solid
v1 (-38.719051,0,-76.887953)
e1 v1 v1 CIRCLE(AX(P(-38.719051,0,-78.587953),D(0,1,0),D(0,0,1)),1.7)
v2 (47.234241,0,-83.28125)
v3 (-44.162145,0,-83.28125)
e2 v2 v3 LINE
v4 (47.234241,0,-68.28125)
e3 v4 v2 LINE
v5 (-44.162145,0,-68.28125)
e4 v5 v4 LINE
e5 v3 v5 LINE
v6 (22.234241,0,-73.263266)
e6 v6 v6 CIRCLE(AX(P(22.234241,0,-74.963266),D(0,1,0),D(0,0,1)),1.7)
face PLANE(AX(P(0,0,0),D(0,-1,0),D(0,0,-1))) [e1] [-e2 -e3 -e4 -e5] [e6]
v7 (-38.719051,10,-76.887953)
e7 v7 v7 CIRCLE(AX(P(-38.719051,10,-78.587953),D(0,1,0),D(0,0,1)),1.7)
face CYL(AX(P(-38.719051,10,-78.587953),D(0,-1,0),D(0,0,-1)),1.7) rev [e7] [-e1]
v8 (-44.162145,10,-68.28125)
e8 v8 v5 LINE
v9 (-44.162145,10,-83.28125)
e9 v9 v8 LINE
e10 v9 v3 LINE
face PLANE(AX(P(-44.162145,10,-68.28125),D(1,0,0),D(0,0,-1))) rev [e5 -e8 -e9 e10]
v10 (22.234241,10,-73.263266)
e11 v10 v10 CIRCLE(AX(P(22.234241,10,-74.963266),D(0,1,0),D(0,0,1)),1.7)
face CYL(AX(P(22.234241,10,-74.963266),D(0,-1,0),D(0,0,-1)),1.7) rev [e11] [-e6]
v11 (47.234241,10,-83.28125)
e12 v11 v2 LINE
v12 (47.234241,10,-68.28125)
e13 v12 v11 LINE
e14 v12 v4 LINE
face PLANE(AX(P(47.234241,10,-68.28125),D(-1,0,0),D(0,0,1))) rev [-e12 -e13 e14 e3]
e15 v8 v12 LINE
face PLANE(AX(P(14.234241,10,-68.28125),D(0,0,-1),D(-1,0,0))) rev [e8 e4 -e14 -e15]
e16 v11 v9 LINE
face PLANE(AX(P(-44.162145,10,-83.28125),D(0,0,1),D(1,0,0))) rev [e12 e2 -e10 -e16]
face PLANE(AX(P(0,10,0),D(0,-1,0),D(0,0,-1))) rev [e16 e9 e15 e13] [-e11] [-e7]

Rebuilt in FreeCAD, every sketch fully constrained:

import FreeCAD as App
import Part
import Sketcher


def add_polygon(sketch, points):
    """Adds a closed chain of lines whose ends are joined by coincident constraints."""
    first, n = sketch.GeometryCount, len(points)
    for a, b in zip(points, points[1:] + points[:1]):
        sketch.addGeometry(Part.LineSegment(App.Vector(*a, 0), App.Vector(*b, 0)), False)
    for i in range(n):
        sketch.addConstraint(Sketcher.Constraint("Coincident", first + i, 2, first + (i + 1) % n, 1))

doc = App.newDocument("Part")
params = doc.addObject("Spreadsheet::Sheet", "Params")
for row, (alias, value) in enumerate([
    ("sketch1_diameter", "3.4 mm"),
    ("sketch1_height", "15 mm"),
    ("pad1_length", "10 mm"),
], start=1):
    params.set(f"A{row}", alias)
    params.set(f"B{row}", "=" + value)
    params.setAlias(f"B{row}", alias)

body = doc.addObject("PartDesign::Body", "Body")

sketch1 = body.newObject("Sketcher::SketchObject", "Sketch")
sketch1.AttachmentSupport = (doc.getObject("XZ_Plane"), [""])
sketch1.MapMode = "FlatFace"
add_polygon(sketch1, [(47.2, -83.3), (-44.2, -83.3), (-44.2, -68.3), (47.2, -68.3)])
sketch1.addGeometry(Part.Circle(App.Vector(22.2, -75, 0), App.Vector(0, 0, 1), 1.7), False)
sketch1.addGeometry(Part.Circle(App.Vector(-38.7, -78.6, 0), App.Vector(0, 0, 1), 1.7), False)
sketch1.addConstraint([
    Sketcher.Constraint("Horizontal", 0),
    Sketcher.Constraint("Vertical", 1),
    Sketcher.Constraint("Horizontal", 2),
    Sketcher.Constraint("Vertical", 3),
    Sketcher.Constraint("Equal", 4, 5),
    Sketcher.Constraint("Diameter", 4, 3.4),
    Sketcher.Constraint("DistanceY", 1, 1, 1, 2, 15.0),
    Sketcher.Constraint("DistanceX", 4, 3, 2, 2, 25.0),
    Sketcher.Constraint("DistanceX", 0, 2, 0, 1, 91.396386),
    Sketcher.Constraint("DistanceX", -1, 1, 4, 3, 22.234241),
    Sketcher.Constraint("DistanceX", 5, 3, -1, 1, 38.719051),
    Sketcher.Constraint("DistanceY", 0, 2, -1, 1, 83.28125),
    Sketcher.Constraint("DistanceY", 4, 3, -1, 1, 74.963266),
    Sketcher.Constraint("DistanceY", 5, 3, -1, 1, 78.587953),
])
sketch1.setExpression("Constraints[9]", "Params.sketch1_diameter")
sketch1.setExpression("Constraints[10]", "Params.sketch1_height")
pad1 = body.newObject("PartDesign::Pad", "Pad")
pad1.Profile = sketch1
pad1.setExpression("Length", "Params.pad1_length")
pad1.Reversed = True

doc.recompute()
